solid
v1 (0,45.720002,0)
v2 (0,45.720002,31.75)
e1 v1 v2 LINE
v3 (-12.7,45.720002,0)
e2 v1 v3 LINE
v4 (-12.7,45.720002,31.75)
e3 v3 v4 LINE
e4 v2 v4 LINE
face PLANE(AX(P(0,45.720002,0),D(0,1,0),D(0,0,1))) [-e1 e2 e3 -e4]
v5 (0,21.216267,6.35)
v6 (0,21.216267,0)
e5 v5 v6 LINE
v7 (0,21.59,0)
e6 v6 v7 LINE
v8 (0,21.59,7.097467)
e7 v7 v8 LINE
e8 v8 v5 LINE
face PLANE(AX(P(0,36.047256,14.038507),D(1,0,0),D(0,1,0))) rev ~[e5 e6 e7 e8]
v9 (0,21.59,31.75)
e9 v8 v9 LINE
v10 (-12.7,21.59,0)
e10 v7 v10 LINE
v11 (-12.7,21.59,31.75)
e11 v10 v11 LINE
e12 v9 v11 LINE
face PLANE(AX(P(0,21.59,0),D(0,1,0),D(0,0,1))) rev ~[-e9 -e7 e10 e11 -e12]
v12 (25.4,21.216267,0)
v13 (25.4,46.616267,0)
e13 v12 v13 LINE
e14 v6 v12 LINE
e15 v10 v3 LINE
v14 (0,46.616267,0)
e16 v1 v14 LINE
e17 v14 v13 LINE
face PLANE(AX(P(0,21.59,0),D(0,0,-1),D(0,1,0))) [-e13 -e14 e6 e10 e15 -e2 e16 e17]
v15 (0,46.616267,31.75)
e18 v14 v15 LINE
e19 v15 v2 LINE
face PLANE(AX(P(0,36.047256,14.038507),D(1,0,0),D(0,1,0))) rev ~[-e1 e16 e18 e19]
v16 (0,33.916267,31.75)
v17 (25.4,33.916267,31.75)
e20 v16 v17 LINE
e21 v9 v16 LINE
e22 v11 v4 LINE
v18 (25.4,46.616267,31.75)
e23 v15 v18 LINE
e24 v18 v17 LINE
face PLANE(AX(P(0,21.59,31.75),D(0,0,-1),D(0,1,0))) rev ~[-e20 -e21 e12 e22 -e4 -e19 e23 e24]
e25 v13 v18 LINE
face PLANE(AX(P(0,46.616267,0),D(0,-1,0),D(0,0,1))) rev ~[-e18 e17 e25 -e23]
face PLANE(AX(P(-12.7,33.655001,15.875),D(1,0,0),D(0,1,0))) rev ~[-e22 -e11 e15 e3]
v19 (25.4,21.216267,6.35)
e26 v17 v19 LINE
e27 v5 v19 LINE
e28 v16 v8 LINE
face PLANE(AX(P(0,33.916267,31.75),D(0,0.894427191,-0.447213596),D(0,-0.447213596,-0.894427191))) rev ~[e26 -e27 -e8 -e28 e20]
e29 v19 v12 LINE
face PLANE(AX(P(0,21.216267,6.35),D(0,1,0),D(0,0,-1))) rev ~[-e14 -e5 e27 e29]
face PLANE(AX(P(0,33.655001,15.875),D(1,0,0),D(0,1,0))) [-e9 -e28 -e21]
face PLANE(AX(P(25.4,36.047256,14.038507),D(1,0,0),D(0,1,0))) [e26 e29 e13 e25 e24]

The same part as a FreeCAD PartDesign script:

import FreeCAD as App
import Part
import Sketcher
Q = App.Units.Quantity


def add_polygon(sketch, points):
    """Adds a closed chain of lines whose ends are joined by coincident constraints."""
    first, n = sketch.GeometryCount, len(points)
    for a, b in zip(points, points[1:] + points[:1]):
        sketch.addGeometry(Part.LineSegment(App.Vector(*a, 0), App.Vector(*b, 0)), False)
    for i in range(n):
        sketch.addConstraint(Sketcher.Constraint("Coincident", first + i, 2, first + (i + 1) % n, 1))

doc = App.newDocument("Part")
body = doc.addObject("PartDesign::Body", "Body")

# Sketch on YZ plane
sketch1 = body.newObject("Sketcher::SketchObject", "Sketch")
sketch1.AttachmentSupport = (doc.getObject("YZ_Plane"), [""])
sketch1.MapMode = "FlatFace"
add_polygon(sketch1, [(21.216267, 0), (46.616267, 0), (46.616267, 31.75), (33.916267, 31.75), (21.216267, 6.35)])  # lines 0-4
sketch1.addConstraint(Sketcher.Constraint("Horizontal", 0))
sketch1.addConstraint(Sketcher.Constraint("Vertical", 1))
sketch1.addConstraint(Sketcher.Constraint("Horizontal", 2))
sketch1.addConstraint(Sketcher.Constraint("Vertical", 4))
sketch1.addConstraint(Sketcher.Constraint("PointOnObject", 0, 2, -1))
sketch1.addConstraint(Sketcher.Constraint("DistanceX", 0, 1, 0, 2, Q("1 in")))
sketch1.addConstraint(Sketcher.Constraint("DistanceX", 2, 2, 2, 1, Q("0.5 in")))
sketch1.addConstraint(Sketcher.Constraint("DistanceY", 3, 2, 2, 2, Q("1 in")))
sketch1.addConstraint(Sketcher.Constraint("DistanceY", 1, 1, 1, 2, Q("1.25 in")))
sketch1.addConstraint(Sketcher.Constraint("DistanceX", -1, 1, 0, 2, 46.616267))
pad1 = body.newObject("PartDesign::Pad", "Pad")
pad1.Profile = sketch1
pad1.Length = Q("1 in")

# Sketch on YZ plane
sketch2 = body.newObject("Sketcher::SketchObject", "Sketch001")
sketch2.AttachmentSupport = (doc.getObject("YZ_Plane"), [""])
sketch2.MapMode = "FlatFace"
add_polygon(sketch2, [(21.59, 31.75), (21.59, 0), (45.720002, 0), (45.720002, 31.75)])  # lines 0-3
sketch2.addConstraint(Sketcher.Constraint("Vertical", 0))
sketch2.addConstraint(Sketcher.Constraint("Horizontal", 1))
sketch2.addConstraint(Sketcher.Constraint("Vertical", 2))
sketch2.addConstraint(Sketcher.Constraint("Horizontal", 3))
sketch2.addConstraint(Sketcher.Constraint("PointOnObject", 0, 2, -1))
sketch2.addConstraint(Sketcher.Constraint("DistanceX", 1, 1, 1, 2, Q("0.95 in")))
sketch2.addConstraint(Sketcher.Constraint("DistanceY", 0, 2, 0, 1, Q("1.25 in")))
sketch2.addConstraint(Sketcher.Constraint("DistanceX", -1, 1, 1, 2, Q("1.8000001 in")))
pad2 = body.newObject("PartDesign::Pad", "Pad001")
pad2.Profile = sketch2
pad2.Length = Q("0.5 in")
pad2.Reversed = True

doc.recompute()
